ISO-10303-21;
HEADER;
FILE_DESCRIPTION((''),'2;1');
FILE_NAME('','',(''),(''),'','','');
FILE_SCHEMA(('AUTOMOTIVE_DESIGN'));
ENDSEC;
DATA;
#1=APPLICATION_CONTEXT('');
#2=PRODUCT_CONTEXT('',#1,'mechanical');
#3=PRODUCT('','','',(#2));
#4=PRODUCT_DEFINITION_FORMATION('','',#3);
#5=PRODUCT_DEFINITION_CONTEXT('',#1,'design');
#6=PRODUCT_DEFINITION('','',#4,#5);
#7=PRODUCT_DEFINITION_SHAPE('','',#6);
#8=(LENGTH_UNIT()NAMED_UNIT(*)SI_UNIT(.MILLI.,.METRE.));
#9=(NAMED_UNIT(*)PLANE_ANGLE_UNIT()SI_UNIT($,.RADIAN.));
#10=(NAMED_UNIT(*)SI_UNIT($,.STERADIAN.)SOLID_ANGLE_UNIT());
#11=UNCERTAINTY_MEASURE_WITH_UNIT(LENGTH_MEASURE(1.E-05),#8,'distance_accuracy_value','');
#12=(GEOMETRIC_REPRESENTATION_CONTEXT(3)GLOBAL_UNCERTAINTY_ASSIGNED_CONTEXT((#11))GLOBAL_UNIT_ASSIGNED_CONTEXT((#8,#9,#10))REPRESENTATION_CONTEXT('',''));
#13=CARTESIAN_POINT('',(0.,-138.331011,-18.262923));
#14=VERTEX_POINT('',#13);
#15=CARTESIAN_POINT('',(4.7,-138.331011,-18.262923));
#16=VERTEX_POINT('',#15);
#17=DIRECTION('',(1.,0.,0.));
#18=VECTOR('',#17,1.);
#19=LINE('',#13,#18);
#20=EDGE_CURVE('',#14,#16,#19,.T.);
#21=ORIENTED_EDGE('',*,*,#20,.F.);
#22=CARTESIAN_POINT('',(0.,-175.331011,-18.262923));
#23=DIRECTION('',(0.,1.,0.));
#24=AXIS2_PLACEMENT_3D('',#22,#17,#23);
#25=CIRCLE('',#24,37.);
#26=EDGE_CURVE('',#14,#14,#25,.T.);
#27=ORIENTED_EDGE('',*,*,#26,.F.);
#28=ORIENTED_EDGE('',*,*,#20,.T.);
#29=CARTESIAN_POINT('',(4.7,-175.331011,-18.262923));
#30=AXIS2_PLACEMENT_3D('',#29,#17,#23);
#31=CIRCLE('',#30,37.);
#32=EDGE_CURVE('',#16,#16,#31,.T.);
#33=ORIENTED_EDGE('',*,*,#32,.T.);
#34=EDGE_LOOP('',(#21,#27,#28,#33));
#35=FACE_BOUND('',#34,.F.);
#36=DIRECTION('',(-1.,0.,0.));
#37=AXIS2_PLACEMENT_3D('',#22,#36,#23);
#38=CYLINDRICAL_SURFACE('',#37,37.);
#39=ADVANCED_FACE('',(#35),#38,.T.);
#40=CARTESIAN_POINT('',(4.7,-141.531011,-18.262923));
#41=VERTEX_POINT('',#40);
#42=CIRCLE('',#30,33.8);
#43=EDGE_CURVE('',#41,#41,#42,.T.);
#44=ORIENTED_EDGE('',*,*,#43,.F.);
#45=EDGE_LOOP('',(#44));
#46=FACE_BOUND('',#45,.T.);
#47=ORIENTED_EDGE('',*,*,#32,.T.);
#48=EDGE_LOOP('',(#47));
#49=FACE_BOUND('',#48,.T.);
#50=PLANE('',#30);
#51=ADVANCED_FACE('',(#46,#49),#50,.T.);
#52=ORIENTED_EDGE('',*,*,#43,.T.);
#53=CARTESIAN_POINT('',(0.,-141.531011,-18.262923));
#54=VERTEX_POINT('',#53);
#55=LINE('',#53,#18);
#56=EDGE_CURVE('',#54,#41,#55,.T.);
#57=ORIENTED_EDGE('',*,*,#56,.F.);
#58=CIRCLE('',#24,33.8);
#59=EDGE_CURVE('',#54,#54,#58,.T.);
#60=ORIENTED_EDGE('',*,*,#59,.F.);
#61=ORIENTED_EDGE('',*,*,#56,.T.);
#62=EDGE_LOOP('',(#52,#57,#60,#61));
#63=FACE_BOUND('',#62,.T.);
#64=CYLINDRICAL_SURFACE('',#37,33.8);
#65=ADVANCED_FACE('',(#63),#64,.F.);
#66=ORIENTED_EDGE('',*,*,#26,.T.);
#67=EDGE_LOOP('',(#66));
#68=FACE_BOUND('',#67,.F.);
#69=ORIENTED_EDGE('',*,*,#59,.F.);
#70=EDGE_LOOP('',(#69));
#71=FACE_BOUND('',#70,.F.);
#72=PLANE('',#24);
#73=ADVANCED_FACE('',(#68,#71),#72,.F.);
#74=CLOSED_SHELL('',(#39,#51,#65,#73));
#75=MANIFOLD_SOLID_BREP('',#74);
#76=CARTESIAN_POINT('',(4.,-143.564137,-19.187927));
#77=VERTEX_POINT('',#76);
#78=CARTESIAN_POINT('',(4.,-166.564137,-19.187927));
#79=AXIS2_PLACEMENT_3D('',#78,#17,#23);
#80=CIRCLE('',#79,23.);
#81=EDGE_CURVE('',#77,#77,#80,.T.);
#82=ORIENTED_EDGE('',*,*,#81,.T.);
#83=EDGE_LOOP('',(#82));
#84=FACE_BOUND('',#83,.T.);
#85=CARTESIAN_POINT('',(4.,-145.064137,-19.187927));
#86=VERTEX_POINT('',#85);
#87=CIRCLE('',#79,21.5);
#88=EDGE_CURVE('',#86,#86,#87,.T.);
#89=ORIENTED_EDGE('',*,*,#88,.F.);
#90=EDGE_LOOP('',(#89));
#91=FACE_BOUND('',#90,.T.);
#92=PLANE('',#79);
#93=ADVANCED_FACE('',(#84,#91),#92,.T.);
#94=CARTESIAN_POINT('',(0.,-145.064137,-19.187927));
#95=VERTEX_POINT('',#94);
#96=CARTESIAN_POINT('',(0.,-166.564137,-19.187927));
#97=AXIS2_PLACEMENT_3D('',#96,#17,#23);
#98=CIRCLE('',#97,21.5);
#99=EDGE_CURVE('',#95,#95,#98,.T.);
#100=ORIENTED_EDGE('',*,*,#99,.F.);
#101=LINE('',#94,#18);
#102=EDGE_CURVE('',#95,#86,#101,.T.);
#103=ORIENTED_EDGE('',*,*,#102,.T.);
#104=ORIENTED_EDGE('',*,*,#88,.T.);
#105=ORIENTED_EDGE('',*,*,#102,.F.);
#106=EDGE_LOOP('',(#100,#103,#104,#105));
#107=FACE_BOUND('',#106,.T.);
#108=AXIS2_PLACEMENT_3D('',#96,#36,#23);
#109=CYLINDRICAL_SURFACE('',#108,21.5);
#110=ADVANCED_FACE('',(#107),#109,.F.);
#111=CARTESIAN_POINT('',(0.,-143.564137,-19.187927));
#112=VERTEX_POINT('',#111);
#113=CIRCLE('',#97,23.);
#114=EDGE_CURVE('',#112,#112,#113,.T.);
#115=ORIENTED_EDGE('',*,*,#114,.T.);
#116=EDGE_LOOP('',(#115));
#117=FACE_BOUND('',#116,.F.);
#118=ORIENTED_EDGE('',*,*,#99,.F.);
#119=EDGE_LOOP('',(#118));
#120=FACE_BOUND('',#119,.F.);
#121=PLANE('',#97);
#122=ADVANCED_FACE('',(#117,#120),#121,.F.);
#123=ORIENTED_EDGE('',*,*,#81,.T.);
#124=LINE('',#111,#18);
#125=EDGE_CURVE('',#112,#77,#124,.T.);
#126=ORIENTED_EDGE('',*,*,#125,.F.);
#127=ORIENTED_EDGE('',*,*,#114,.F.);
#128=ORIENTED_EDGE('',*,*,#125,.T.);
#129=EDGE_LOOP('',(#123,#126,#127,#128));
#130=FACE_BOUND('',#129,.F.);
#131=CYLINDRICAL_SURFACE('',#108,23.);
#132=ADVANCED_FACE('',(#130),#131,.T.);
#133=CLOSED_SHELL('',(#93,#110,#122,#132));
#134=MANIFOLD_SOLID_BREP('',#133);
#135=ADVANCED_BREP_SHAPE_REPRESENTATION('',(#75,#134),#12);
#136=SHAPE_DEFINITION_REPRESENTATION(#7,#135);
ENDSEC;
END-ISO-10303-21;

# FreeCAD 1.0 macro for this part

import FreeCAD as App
import Part
import Sketcher

doc = App.newDocument("Part")
body = doc.addObject("PartDesign::Body", "Body")

sketch1 = doc.addObject("Sketcher::SketchObject", "Sketch")
body.addObject(sketch1)
sketch1.AttachmentSupport = (doc.YZ_Plane, [""])
sketch1.MapMode = "FlatFace"
sketch1.addGeometry(Part.Circle(App.Vector(-167, -19, 0), App.Vector(0, 0, 1), 23), False)
sketch1.addGeometry(Part.Circle(App.Vector(-167, -19, 0), App.Vector(0, 0, 1), 22), False)
sketch1.addConstraint(Sketcher.Constraint("Coincident", 1, 3, 0, 3))
sketch1.addConstraint(Sketcher.Constraint("Diameter", 0, 46.0))
sketch1.addConstraint(Sketcher.Constraint("Diameter", 1, 43.0))
sketch1.addConstraint(Sketcher.Constraint("DistanceX", 0, 3, -1, 1, 166.564137))
sketch1.addConstraint(Sketcher.Constraint("DistanceY", 0, 3, -1, 1, 19.187927))
pad1 = doc.addObject("PartDesign::Pad", "Pad")
body.addObject(pad1)
pad1.Profile = sketch1
pad1.Length = 4
body2 = doc.addObject("PartDesign::Body", "Body001")

sketch2 = doc.addObject("Sketcher::SketchObject", "Sketch001")
body2.addObject(sketch2)
sketch2.AttachmentSupport = (doc.getObject("YZ_Plane001"), [""])
sketch2.MapMode = "FlatFace"
sketch2.addGeometry(Part.Circle(App.Vector(-175, -18, 0), App.Vector(0, 0, 1), 37), False)
sketch2.addGeometry(Part.Circle(App.Vector(-175, -18, 0), App.Vector(0, 0, 1), 34), False)
sketch2.addConstraint(Sketcher.Constraint("Coincident", 1, 3, 0, 3))
sketch2.addConstraint(Sketcher.Constraint("Diameter", 0, 74.0))
sketch2.addConstraint(Sketcher.Constraint("Diameter", 1, 67.6))
sketch2.addConstraint(Sketcher.Constraint("DistanceX", 0, 3, -1, 1, 175.331011))
sketch2.addConstraint(Sketcher.Constraint("DistanceY", 0, 3, -1, 1, 18.262923))
pad2 = doc.addObject("PartDesign::Pad", "Pad001")
body2.addObject(pad2)
pad2.Profile = sketch2
pad2.Length = 4.7

doc.recompute()
